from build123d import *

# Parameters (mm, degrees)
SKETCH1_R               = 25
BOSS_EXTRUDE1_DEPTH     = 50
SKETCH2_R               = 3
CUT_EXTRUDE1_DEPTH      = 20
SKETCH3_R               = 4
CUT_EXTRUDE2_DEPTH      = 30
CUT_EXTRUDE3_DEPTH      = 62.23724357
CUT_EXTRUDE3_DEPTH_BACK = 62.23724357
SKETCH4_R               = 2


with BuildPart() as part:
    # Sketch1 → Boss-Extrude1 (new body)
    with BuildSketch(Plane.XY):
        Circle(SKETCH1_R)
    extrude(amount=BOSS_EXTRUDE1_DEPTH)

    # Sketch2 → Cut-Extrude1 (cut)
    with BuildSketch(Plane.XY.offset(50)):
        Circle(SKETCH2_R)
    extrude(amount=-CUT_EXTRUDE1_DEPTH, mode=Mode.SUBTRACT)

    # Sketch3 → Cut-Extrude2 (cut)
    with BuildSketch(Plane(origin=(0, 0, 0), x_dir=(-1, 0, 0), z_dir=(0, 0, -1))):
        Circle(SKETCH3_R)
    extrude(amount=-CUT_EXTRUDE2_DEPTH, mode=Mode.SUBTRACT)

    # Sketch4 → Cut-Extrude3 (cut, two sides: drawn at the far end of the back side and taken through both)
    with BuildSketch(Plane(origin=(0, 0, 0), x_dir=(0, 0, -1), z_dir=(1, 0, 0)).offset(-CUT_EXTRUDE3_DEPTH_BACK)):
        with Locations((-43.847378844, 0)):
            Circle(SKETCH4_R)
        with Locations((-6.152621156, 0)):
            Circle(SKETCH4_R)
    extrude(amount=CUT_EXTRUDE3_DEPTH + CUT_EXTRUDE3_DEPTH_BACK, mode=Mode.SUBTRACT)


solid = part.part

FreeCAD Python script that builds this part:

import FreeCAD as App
import Part
import Sketcher

V = App.Vector
Q = App.Units.Quantity

doc = App.newDocument("Part")
body = doc.addObject("PartDesign::Body", "Body")

# Sketch on XY plane
sketch1 = body.newObject("Sketcher::SketchObject", "Sketch")
sketch1.AttachmentSupport = (doc.getObject("XY_Plane"), [""])
sketch1.MapMode = "FlatFace"
sketch1.addGeometry(Part.Circle(V(0, 0, 0), V(0, 0, 1), 25), False)
sketch1.addConstraint(Sketcher.Constraint("Coincident", 0, 3, -1, 1))
sketch1.addConstraint(Sketcher.Constraint("Diameter", 0, Q("50 mm")))
pad1 = body.newObject("PartDesign::Pad", "Pad")
pad1.Profile = sketch1
pad1.Length = 50

# Sketch on XY plane
sketch2 = body.newObject("Sketcher::SketchObject", "Sketch001")
sketch2.AttachmentSupport = (doc.getObject("XY_Plane"), [""])
sketch2.MapMode = "FlatFace"
sketch2.AttachmentOffset = App.Placement(V(0, 0, 50), App.Rotation())
sketch2.addGeometry(Part.Circle(V(0, 0, 0), V(0, 0, 1), 3), False)
sketch2.addConstraint(Sketcher.Constraint("Coincident", 0, 3, -1, 1))
sketch2.addConstraint(Sketcher.Constraint("Diameter", 0, Q("6 mm")))
pocket1 = body.newObject("PartDesign::Pocket", "Pocket")
pocket1.Profile = sketch2
pocket1.Length = 20

# Sketch on XY plane
sketch3 = body.newObject("Sketcher::SketchObject", "Sketch002")
sketch3.AttachmentSupport = (doc.getObject("XY_Plane"), [""])
sketch3.MapMode = "FlatFace"
sketch3.addGeometry(Part.Circle(V(0, 0, 0), V(0, 0, 1), 4), False)
sketch3.addConstraint(Sketcher.Constraint("Coincident", 0, 3, -1, 1))
sketch3.addConstraint(Sketcher.Constraint("Diameter", 0, Q("8 mm")))
pocket2 = body.newObject("PartDesign::Pocket", "Pocket001")
pocket2.Profile = sketch3
pocket2.Length = 30
pocket2.Reversed = True

# Sketch on YZ plane
sketch4 = body.newObject("Sketcher::SketchObject", "Sketch003")
sketch4.AttachmentSupport = (doc.getObject("YZ_Plane"), [""])
sketch4.MapMode = "FlatFace"
sketch4.addGeometry(Part.Circle(V(0, 43.8, 0), V(0, 0, 1), 2), False)
sketch4.addGeometry(Part.Circle(V(0, 6.2, 0), V(0, 0, 1), 2), False)
sketch4.addConstraint(Sketcher.Constraint("Equal", 0, 1))
sketch4.addConstraint(Sketcher.Constraint("PointOnObject", 0, 3, -2))
sketch4.addConstraint(Sketcher.Constraint("PointOnObject", 1, 3, -2))
sketch4.addConstraint(Sketcher.Constraint("Diameter", 0, Q("4 mm")))
sketch4.addConstraint(Sketcher.Constraint("DistanceY", -1, 1, 0, 3, Q("43.847379 mm")))
sketch4.addConstraint(Sketcher.Constraint("DistanceY", -1, 1, 1, 3, Q("6.152621 mm")))
pocket3 = body.newObject("PartDesign::Pocket", "Pocket002")
pocket3.Profile = sketch4
pocket3.Type = "ThroughAll"
pocket3.Midplane = True

doc.recompute()
